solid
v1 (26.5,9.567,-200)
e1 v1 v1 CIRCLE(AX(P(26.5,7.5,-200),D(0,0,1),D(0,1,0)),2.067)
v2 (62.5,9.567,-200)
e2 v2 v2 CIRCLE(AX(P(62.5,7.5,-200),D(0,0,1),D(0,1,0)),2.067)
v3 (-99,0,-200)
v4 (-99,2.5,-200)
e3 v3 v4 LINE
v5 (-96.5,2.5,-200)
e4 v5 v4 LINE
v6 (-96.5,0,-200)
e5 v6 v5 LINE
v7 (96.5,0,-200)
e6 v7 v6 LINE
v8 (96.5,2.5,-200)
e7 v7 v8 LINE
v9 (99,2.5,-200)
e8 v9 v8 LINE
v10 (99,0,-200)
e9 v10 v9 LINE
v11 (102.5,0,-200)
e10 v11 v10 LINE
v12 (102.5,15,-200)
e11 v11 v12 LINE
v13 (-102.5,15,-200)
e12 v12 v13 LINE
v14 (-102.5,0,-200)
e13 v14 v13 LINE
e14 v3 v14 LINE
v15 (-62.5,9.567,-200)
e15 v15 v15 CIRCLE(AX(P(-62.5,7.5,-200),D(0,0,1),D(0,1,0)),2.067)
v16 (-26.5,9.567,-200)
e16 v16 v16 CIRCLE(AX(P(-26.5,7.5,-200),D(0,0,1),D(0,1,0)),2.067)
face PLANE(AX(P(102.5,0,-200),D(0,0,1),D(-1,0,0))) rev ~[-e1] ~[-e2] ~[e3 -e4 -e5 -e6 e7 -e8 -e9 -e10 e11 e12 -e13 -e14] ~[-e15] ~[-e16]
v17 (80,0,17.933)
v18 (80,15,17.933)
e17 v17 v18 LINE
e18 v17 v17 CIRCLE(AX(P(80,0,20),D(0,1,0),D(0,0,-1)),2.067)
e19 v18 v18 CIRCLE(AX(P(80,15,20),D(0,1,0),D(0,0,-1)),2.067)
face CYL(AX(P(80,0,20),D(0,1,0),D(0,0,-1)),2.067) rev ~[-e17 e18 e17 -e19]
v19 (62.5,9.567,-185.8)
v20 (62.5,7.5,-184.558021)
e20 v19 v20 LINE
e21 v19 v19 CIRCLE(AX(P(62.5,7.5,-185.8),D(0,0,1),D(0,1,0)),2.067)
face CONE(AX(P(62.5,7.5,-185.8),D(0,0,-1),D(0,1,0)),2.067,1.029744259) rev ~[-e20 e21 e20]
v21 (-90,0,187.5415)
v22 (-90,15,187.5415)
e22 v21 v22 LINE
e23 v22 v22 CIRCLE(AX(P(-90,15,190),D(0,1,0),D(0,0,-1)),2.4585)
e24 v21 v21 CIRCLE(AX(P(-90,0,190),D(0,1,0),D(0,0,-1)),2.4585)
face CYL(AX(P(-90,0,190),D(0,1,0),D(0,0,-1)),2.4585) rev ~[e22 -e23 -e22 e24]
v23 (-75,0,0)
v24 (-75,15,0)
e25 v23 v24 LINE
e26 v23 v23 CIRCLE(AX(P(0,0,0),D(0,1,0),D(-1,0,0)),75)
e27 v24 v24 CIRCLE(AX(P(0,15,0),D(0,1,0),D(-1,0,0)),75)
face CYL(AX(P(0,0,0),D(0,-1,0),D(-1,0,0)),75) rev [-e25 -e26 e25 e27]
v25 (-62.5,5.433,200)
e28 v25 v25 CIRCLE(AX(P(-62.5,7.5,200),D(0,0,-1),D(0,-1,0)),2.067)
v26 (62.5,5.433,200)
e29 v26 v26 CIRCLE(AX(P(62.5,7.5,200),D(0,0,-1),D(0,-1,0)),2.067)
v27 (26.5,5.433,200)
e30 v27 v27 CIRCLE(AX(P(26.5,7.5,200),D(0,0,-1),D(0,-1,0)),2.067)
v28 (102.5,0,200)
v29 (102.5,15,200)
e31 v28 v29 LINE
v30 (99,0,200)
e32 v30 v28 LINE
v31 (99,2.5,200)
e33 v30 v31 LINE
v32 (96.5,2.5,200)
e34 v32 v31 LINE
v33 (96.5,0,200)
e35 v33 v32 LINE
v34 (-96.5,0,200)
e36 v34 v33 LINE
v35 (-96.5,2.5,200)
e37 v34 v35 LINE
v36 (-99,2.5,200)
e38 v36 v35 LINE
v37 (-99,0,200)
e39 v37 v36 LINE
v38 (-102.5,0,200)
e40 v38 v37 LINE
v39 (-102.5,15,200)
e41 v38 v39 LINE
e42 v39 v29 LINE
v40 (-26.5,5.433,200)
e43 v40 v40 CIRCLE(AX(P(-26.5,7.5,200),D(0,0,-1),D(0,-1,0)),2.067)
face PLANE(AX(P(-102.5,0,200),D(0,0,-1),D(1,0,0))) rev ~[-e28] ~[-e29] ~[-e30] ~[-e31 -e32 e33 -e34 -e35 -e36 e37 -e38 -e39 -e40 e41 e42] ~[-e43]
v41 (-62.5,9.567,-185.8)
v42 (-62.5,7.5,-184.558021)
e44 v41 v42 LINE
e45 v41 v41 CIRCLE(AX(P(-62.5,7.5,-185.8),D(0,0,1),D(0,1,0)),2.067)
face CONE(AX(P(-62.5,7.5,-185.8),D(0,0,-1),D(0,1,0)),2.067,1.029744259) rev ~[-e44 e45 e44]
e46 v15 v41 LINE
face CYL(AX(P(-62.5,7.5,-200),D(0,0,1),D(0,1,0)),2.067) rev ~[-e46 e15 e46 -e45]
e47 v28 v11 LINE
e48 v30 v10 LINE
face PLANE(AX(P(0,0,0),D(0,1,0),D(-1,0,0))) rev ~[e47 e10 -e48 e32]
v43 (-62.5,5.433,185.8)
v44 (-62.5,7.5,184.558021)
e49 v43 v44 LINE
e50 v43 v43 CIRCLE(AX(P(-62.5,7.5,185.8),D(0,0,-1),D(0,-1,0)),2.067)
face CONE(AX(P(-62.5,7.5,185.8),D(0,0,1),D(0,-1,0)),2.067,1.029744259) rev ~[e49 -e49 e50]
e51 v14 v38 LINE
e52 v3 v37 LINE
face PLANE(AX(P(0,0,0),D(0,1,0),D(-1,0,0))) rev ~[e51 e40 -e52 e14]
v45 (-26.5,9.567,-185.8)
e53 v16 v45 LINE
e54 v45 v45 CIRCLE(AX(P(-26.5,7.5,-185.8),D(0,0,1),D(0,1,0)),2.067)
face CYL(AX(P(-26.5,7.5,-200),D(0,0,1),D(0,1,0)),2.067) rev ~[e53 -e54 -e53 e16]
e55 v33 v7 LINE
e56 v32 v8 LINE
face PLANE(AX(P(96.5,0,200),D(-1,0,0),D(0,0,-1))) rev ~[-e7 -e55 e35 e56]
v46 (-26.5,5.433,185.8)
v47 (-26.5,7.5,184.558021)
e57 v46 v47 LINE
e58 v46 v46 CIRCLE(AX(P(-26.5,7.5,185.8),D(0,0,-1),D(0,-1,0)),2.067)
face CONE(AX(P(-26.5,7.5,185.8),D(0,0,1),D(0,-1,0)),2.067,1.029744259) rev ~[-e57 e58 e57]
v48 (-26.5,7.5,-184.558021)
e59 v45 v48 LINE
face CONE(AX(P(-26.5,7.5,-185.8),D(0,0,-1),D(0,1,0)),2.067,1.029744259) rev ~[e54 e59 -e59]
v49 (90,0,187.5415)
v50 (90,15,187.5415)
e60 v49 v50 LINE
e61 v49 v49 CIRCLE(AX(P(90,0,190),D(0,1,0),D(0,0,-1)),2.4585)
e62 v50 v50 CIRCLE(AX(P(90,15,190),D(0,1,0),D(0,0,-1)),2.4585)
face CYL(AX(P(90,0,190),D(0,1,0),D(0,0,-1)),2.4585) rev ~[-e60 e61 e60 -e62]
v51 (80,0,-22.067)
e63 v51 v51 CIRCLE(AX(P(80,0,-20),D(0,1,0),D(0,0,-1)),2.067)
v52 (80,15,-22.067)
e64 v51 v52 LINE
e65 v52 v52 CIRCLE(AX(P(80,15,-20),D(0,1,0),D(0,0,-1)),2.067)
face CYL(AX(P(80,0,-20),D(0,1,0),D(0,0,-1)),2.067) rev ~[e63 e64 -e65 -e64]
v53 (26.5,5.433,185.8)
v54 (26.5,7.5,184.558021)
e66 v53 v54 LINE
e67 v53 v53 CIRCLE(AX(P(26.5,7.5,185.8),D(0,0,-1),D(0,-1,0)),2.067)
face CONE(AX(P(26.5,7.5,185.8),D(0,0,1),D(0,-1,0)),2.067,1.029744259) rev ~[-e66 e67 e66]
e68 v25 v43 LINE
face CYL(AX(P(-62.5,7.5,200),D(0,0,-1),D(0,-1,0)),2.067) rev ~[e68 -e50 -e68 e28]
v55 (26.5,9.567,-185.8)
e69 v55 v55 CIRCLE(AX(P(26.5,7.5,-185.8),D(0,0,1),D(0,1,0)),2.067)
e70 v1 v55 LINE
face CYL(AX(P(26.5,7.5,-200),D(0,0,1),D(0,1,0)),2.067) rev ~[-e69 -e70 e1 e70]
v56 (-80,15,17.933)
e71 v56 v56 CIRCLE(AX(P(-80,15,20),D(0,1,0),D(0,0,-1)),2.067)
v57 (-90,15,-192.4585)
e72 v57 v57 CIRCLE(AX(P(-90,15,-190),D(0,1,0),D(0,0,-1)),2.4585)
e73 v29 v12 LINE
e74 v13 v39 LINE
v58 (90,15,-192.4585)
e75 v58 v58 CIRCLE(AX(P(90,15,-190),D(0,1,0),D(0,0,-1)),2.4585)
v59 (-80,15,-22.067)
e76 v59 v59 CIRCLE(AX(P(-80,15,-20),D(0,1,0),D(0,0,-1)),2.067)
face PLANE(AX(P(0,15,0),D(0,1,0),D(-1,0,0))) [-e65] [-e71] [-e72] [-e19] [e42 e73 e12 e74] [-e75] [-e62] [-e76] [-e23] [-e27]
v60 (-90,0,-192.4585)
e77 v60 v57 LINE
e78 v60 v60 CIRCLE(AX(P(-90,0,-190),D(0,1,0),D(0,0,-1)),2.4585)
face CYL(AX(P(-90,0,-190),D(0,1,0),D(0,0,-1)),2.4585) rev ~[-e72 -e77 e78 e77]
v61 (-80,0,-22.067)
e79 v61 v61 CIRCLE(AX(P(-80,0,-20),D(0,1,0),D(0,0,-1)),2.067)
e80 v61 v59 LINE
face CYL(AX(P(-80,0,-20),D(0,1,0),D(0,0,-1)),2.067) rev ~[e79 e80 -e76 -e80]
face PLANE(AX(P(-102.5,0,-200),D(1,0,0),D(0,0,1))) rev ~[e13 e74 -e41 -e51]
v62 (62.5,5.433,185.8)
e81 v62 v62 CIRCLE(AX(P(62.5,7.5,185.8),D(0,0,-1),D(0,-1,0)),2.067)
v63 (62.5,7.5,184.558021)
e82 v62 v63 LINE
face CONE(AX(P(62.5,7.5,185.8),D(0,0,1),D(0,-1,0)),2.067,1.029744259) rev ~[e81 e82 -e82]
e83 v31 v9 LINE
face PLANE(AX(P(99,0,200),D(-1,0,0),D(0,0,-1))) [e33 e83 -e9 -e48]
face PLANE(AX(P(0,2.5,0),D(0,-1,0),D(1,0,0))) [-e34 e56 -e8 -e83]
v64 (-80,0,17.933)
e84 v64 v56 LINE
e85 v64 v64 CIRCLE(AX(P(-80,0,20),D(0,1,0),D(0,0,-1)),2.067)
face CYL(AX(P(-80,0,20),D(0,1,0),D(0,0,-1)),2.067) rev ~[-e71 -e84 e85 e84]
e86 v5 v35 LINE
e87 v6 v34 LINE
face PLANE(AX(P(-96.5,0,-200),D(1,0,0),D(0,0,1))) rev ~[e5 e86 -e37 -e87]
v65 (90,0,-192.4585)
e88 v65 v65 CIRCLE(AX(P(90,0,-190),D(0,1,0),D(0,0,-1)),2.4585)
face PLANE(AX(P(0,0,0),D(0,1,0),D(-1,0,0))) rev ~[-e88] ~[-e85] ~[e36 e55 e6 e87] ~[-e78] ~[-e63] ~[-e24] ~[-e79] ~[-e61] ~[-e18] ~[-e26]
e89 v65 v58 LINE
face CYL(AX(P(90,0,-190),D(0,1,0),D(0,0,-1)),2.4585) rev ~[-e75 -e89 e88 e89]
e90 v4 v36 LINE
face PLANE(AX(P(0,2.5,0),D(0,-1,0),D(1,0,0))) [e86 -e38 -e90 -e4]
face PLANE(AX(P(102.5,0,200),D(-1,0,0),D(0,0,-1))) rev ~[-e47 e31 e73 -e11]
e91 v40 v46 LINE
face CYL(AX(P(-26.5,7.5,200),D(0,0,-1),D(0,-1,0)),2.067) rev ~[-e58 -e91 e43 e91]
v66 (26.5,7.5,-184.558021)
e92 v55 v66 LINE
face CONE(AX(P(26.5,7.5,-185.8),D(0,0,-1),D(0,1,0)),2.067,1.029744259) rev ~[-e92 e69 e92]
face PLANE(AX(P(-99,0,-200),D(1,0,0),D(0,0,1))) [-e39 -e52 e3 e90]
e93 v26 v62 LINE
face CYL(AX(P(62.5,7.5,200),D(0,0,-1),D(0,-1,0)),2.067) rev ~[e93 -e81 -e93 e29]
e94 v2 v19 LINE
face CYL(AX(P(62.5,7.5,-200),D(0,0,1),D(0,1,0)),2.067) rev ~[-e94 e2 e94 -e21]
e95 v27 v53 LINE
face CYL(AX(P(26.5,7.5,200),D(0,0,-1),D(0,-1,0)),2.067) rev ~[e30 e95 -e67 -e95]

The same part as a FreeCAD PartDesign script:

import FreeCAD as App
import Part
import Sketcher


def add_polygon(sketch, points):
    """Adds a closed chain of lines whose ends are joined by coincident constraints."""
    first, n = sketch.GeometryCount, len(points)
    for a, b in zip(points, points[1:] + points[:1]):
        sketch.addGeometry(Part.LineSegment(App.Vector(*a, 0), App.Vector(*b, 0)), False)
    for i in range(n):
        sketch.addConstraint(Sketcher.Constraint("Coincident", first + i, 2, first + (i + 1) % n, 1))

doc = App.newDocument("Part")
body = doc.addObject("PartDesign::Body", "Body")

# Sketch on XZ plane
sketch1 = body.newObject("Sketcher::SketchObject", "Sketch")
sketch1.AttachmentSupport = (doc.getObject("XZ_Plane"), [""])
sketch1.MapMode = "FlatFace"
add_polygon(sketch1, [(102, 200), (102, -200), (-102, -200), (-102, 200)])  # lines 0-3
sketch1.addGeometry(Part.Circle(App.Vector(0, 0, 0), App.Vector(0, 0, 1), 75), False)  # 4
sketch1.addConstraint([
    Sketcher.Constraint("Vertical", 0),
    Sketcher.Constraint("Horizontal", 1),
    Sketcher.Constraint("Vertical", 2),
    Sketcher.Constraint("Horizontal", 3),
    Sketcher.Constraint("Coincident", 4, 3, -1, 1),
    Sketcher.Constraint("Symmetric", 0, 2, 2, 2, -1, 1),
    Sketcher.Constraint("Diameter", 4, 150.0),
    Sketcher.Constraint("DistanceX", 1, 2, 1, 1, 205.0),
    Sketcher.Constraint("DistanceY", 0, 2, 0, 1, 400.0),
])
pad1 = body.newObject("PartDesign::Pad", "Pad")
pad1.Profile = sketch1
pad1.Length = 15
pad1.Reversed = True

# Sketch on XZ plane
sketch2 = body.newObject("Sketcher::SketchObject", "Sketch001")
sketch2.AttachmentSupport = (doc.getObject("XZ_Plane"), [""])
sketch2.MapMode = "FlatFace"
sketch2.addGeometry([
    Part.Circle(App.Vector(90, -190, 0), App.Vector(0, 0, 1), 2.5),
    Part.Circle(App.Vector(-90, -190, 0), App.Vector(0, 0, 1), 2.5),
    Part.Circle(App.Vector(-90, 190, 0), App.Vector(0, 0, 1), 2.5),
    Part.Circle(App.Vector(90, 190, 0), App.Vector(0, 0, 1), 2.5),
], False)
sketch2.addConstraint([
    Sketcher.Constraint("Equal", 0, 1),
    Sketcher.Constraint("Equal", 1, 2),
    Sketcher.Constraint("Equal", 2, 3),
    Sketcher.Constraint("Symmetric", 0, 3, 2, 3, -1, 1),
    Sketcher.Constraint("Symmetric", 1, 3, 3, 3, -1, 1),
    Sketcher.Constraint("Symmetric", 0, 3, 1, 3, -2),
    Sketcher.Constraint("Diameter", 0, 4.917),
    Sketcher.Constraint("DistanceX", -1, 1, 0, 3, 90.0),
    Sketcher.Constraint("DistanceY", 0, 3, -1, 1, 190.0),
])
doc.recompute()
hole = body.newObject("PartDesign::Hole", "Hole")
hole.Profile = sketch2
hole.ThreadType = "None"
hole.Diameter = 4.917
hole.DepthType = "ThroughAll"

# Sketch on XY plane
sketch3 = body.newObject("Sketcher::SketchObject", "Sketch002")
sketch3.AttachmentSupport = (doc.getObject("XY_Plane"), [""])
sketch3.MapMode = "FlatFace"
sketch3.AttachmentOffset = App.Placement(App.Vector(0, 0, -200), App.Rotation())
sketch3.addGeometry([
    Part.Circle(App.Vector(62.5, 7.5, 0), App.Vector(0, 0, 1), 2.1),
    Part.Circle(App.Vector(26.5, 7.5, 0), App.Vector(0, 0, 1), 2.1),
    Part.Circle(App.Vector(-26.5, 7.5, 0), App.Vector(0, 0, 1), 2.1),
    Part.Circle(App.Vector(-62.5, 7.5, 0), App.Vector(0, 0, 1), 2.1),
], False)
sketch3.addConstraint([
    Sketcher.Constraint("Equal", 0, 1),
    Sketcher.Constraint("Equal", 1, 2),
    Sketcher.Constraint("Equal", 2, 3),
    Sketcher.Constraint("Symmetric", 1, 3, 2, 3, -2),
    Sketcher.Constraint("Symmetric", 0, 3, 3, 3, -2),
    Sketcher.Constraint("Horizontal", 0, 3, 1, 3),
    Sketcher.Constraint("Diameter", 0, 4.134),
    Sketcher.Constraint("DistanceX", 1, 3, 0, 3, 36.0),
    Sketcher.Constraint("DistanceX", 2, 3, 1, 3, 53.0),
    Sketcher.Constraint("DistanceY", -1, 1, 0, 3, 7.5),
])
doc.recompute()
hole2 = body.newObject("PartDesign::Hole", "Hole001")
hole2.Profile = sketch3
hole2.ThreadType = "None"
hole2.Diameter = 4.134
hole2.DepthType = "Dimension"
hole2.Depth = 14.2
hole2.DrillPoint = "Angled"
hole2.DrillPointAngle = 118
hole2.Reversed = True

# Sketch on XY plane
sketch4 = body.newObject("Sketcher::SketchObject", "Sketch003")
sketch4.AttachmentSupport = (doc.getObject("XY_Plane"), [""])
sketch4.MapMode = "FlatFace"
sketch4.AttachmentOffset = App.Placement(App.Vector(0, 0, 200), App.Rotation())
sketch4.addGeometry([
    Part.Circle(App.Vector(-62.5, 7.5, 0), App.Vector(0, 0, 1), 2.1),
    Part.Circle(App.Vector(62.5, 7.5, 0), App.Vector(0, 0, 1), 2.1),
    Part.Circle(App.Vector(-26.5, 7.5, 0), App.Vector(0, 0, 1), 2.1),
    Part.Circle(App.Vector(26.5, 7.5, 0), App.Vector(0, 0, 1), 2.1),
], False)
sketch4.addConstraint([
    Sketcher.Constraint("Equal", 0, 1),
    Sketcher.Constraint("Equal", 1, 2),
    Sketcher.Constraint("Equal", 2, 3),
    Sketcher.Constraint("Symmetric", 0, 3, 1, 3, -2),
    Sketcher.Constraint("Symmetric", 2, 3, 3, 3, -2),
    Sketcher.Constraint("Horizontal", 1, 3, 2, 3),
    Sketcher.Constraint("Diameter", 0, 4.134),
    Sketcher.Constraint("DistanceX", 0, 3, 1, 3, 125.0),
    Sketcher.Constraint("DistanceX", 0, 3, 2, 3, 36.0),
    Sketcher.Constraint("DistanceY", -1, 1, 0, 3, 7.5),
])
doc.recompute()
hole3 = body.newObject("PartDesign::Hole", "Hole002")
hole3.Profile = sketch4
hole3.ThreadType = "None"
hole3.Diameter = 4.134
hole3.DepthType = "Dimension"
hole3.Depth = 14.2
hole3.DrillPoint = "Angled"
hole3.DrillPointAngle = 118

# Sketch on XZ plane
sketch5 = body.newObject("Sketcher::SketchObject", "Sketch004")
sketch5.AttachmentSupport = (doc.getObject("XZ_Plane"), [""])
sketch5.MapMode = "FlatFace"
add_polygon(sketch5, [(99, -200), (99, 200), (96.5, 200), (96.5, -200)])  # lines 0-3
add_polygon(sketch5, [(-96.5, -200), (-96.5, 200), (-99, 200), (-99, -200)])  # lines 4-7
sketch5.addConstraint([
    Sketcher.Constraint("Vertical", 0),
    Sketcher.Constraint("Horizontal", 1),
    Sketcher.Constraint("Vertical", 2),
    Sketcher.Constraint("Horizontal", 3),
    Sketcher.Constraint("Vertical", 4),
    Sketcher.Constraint("Horizontal", 5),
    Sketcher.Constraint("Vertical", 6),
    Sketcher.Constraint("Horizontal", 7),
    Sketcher.Constraint("Symmetric", 2, 2, 4, 2, -1, 1),
    Sketcher.Constraint("Symmetric", 0, 2, 6, 2, -1, 1),
    Sketcher.Constraint("Horizontal", 1, 2, 4, 2),
    Sketcher.Constraint("DistanceX", 1, 2, 1, 1, 2.5),
    Sketcher.Constraint("DistanceX", -1, 1, 0, 2, 99.0),
    Sketcher.Constraint("DistanceY", 0, 1, 0, 2, 400.0),
])
pocket1 = body.newObject("PartDesign::Pocket", "Pocket")
pocket1.Profile = sketch5
pocket1.Length = 2.5

# Sketch on XZ plane
sketch6 = body.newObject("Sketcher::SketchObject", "Sketch005")
sketch6.AttachmentSupport = (doc.getObject("XZ_Plane"), [""])
sketch6.MapMode = "FlatFace"
sketch6.addGeometry([
    Part.Circle(App.Vector(-80, 20, 0), App.Vector(0, 0, 1), 2.1),
    Part.Circle(App.Vector(-80, -20, 0), App.Vector(0, 0, 1), 2.1),
    Part.Circle(App.Vector(80, -20, 0), App.Vector(0, 0, 1), 2.1),
    Part.Circle(App.Vector(80, 20, 0), App.Vector(0, 0, 1), 2.1),
], False)
sketch6.addConstraint([
    Sketcher.Constraint("Equal", 0, 1),
    Sketcher.Constraint("Equal", 1, 2),
    Sketcher.Constraint("Equal", 2, 3),
    Sketcher.Constraint("Symmetric", 0, 3, 2, 3, -1, 1),
    Sketcher.Constraint("Symmetric", 1, 3, 3, 3, -1, 1),
    Sketcher.Constraint("Symmetric", 1, 3, 2, 3, -2),
    Sketcher.Constraint("Diameter", 0, 4.134),
    Sketcher.Constraint("DistanceX", 0, 3, -1, 1, 80.0),
    Sketcher.Constraint("DistanceY", -1, 1, 0, 3, 20.0),
])
doc.recompute()
hole4 = body.newObject("PartDesign::Hole", "Hole003")
hole4.Profile = sketch6
hole4.ThreadType = "None"
hole4.Diameter = 4.134
hole4.DepthType = "ThroughAll"

doc.recompute()
